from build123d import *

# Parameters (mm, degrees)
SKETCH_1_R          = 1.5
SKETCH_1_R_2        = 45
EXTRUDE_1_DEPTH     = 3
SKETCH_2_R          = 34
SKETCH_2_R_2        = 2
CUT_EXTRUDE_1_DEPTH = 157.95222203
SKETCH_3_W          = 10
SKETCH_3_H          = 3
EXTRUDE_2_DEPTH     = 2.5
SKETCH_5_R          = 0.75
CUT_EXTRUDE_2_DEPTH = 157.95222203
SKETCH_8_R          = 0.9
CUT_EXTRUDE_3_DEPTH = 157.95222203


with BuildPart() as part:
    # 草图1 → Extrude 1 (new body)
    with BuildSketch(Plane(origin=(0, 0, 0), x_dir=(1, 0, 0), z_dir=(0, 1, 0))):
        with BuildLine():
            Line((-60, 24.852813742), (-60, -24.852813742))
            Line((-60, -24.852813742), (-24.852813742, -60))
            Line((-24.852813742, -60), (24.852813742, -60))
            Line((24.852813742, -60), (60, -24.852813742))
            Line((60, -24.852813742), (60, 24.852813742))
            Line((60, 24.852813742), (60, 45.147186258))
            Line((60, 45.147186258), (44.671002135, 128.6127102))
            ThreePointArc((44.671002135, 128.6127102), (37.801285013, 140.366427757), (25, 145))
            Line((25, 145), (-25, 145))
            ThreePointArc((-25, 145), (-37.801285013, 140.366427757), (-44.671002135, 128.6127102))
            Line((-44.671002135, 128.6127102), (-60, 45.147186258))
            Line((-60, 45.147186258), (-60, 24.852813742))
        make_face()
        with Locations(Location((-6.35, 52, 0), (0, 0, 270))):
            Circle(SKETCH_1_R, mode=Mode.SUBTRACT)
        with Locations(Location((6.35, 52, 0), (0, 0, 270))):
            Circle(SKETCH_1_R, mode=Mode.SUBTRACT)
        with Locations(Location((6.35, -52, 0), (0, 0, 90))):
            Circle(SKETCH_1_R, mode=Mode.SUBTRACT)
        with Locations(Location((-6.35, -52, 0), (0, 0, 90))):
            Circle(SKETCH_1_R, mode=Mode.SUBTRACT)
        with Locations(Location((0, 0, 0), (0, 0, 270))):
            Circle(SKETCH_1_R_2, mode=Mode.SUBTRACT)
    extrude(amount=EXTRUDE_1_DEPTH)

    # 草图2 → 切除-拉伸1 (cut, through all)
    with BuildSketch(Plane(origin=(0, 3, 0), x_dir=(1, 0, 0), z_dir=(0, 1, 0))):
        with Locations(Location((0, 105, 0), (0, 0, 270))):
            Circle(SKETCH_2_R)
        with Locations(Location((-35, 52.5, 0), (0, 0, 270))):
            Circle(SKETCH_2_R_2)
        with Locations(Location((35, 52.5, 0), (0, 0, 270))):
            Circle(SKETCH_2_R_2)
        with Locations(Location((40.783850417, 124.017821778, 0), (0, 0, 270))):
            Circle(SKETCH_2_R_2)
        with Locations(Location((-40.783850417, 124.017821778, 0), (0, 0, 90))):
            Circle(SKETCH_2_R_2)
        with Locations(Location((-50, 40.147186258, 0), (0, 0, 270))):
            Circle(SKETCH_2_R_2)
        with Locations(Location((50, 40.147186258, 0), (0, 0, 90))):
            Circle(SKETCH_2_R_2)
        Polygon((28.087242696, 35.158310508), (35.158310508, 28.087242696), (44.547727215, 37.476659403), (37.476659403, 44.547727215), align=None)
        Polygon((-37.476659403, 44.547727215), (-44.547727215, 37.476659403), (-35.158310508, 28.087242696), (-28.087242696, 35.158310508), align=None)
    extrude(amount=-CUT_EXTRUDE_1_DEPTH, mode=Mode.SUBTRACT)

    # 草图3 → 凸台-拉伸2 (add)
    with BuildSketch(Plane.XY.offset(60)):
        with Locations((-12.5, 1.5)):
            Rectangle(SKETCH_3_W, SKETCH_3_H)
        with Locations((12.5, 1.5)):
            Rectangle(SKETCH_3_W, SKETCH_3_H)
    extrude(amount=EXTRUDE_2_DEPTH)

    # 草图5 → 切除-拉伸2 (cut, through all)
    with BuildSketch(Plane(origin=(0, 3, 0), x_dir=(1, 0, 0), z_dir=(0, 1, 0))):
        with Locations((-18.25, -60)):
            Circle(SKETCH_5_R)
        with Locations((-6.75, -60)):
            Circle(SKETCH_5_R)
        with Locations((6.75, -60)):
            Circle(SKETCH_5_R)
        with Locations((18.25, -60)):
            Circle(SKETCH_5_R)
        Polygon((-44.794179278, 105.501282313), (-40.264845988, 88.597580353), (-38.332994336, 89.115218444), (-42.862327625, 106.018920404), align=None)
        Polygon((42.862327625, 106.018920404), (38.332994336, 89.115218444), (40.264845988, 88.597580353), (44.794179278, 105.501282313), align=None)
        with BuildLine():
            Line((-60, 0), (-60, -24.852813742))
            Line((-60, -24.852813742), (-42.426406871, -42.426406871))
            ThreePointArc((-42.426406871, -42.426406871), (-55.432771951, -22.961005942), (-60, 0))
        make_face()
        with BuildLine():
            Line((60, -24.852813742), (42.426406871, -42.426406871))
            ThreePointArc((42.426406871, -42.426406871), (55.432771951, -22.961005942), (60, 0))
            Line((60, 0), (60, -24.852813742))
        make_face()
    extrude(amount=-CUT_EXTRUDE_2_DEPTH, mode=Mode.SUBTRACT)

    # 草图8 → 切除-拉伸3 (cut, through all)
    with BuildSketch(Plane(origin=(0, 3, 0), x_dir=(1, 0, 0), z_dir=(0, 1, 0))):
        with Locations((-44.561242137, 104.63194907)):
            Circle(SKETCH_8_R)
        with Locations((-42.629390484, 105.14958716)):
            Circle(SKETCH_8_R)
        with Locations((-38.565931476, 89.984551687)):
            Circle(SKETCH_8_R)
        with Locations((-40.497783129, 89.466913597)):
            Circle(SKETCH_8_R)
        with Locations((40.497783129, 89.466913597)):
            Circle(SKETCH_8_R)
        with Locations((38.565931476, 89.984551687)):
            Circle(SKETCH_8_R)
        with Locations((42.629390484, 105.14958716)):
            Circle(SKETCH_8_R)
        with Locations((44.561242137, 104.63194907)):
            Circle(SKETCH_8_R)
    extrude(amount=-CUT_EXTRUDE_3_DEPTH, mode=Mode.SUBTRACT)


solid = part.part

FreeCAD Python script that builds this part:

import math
import FreeCAD as App
import Part
import Sketcher
Q = App.Units.Quantity


def add_polygon(sketch, points):
    """Adds a closed chain of lines whose ends are joined by coincident constraints."""
    first, n = sketch.GeometryCount, len(points)
    for a, b in zip(points, points[1:] + points[:1]):
        sketch.addGeometry(Part.LineSegment(App.Vector(*a, 0), App.Vector(*b, 0)), False)
    for i in range(n):
        sketch.addConstraint(Sketcher.Constraint("Coincident", first + i, 2, first + (i + 1) % n, 1))

doc = App.newDocument("Part")
body = doc.addObject("PartDesign::Body", "Body")

sketch1 = body.newObject("Sketcher::SketchObject", "Sketch")
sketch1.AttachmentSupport = (doc.getObject("XZ_Plane"), [""])
sketch1.MapMode = "FlatFace"
sketch1.addGeometry(Part.LineSegment(App.Vector(-60, 24.852814, 0), App.Vector(-24.852814, 60, 0)), False)
sketch1.addGeometry(Part.LineSegment(App.Vector(-24.852814, 60, 0), App.Vector(24.852814, 60, 0)), False)
sketch1.addGeometry(Part.LineSegment(App.Vector(24.852814, 60, 0), App.Vector(60, 24.852814, 0)), False)
sketch1.addGeometry(Part.LineSegment(App.Vector(60, 24.852814, 0), App.Vector(60, -45.147186, 0)), False)
sketch1.addGeometry(Part.LineSegment(App.Vector(60, -45.147186, 0), App.Vector(44.671002, -128.61271, 0)), False)
sketch1.addGeometry(Part.ArcOfCircle(Part.Circle(App.Vector(25, -125, 0), App.Vector(0, 0, 1), 20), math.radians(-90), math.radians(-10.406779)), False)
sketch1.addGeometry(Part.LineSegment(App.Vector(25, -145, 0), App.Vector(-25, -145, 0)), False)
sketch1.addGeometry(Part.ArcOfCircle(Part.Circle(App.Vector(-25, -125, 0), App.Vector(0, 0, 1), 20), math.radians(-169.593221), math.radians(-90)), False)
sketch1.addGeometry(Part.LineSegment(App.Vector(-44.671002, -128.61271, 0), App.Vector(-60, -45.147186, 0)), False)
sketch1.addGeometry(Part.LineSegment(App.Vector(-60, -45.147186, 0), App.Vector(-60, 24.852814, 0)), False)
sketch1.addGeometry(Part.Circle(App.Vector(-6.35, 52, 0), App.Vector(0, 0, 1), 1.5), False)
sketch1.addGeometry(Part.Circle(App.Vector(6.35, 52, 0), App.Vector(0, 0, 1), 1.5), False)
sketch1.addGeometry(Part.Circle(App.Vector(0, 0, 0), App.Vector(0, 0, 1), 45), False)
sketch1.addGeometry(Part.Circle(App.Vector(-6.35, -52, 0), App.Vector(0, 0, 1), 1.5), False)
sketch1.addGeometry(Part.Circle(App.Vector(6.35, -52, 0), App.Vector(0, 0, 1), 1.5), False)
sketch1.addConstraint(Sketcher.Constraint("Coincident", 0, 2, 1, 1))
sketch1.addConstraint(Sketcher.Constraint("Coincident", 1, 2, 2, 1))
sketch1.addConstraint(Sketcher.Constraint("Coincident", 2, 2, 3, 1))
sketch1.addConstraint(Sketcher.Constraint("Coincident", 3, 2, 4, 1))
sketch1.addConstraint(Sketcher.Constraint("Tangent", 4, 2, 5, 2))
sketch1.addConstraint(Sketcher.Constraint("Tangent", 5, 1, 6, 1))
sketch1.addConstraint(Sketcher.Constraint("Tangent", 6, 2, 7, 2))
sketch1.addConstraint(Sketcher.Constraint("Tangent", 7, 1, 8, 1))
sketch1.addConstraint(Sketcher.Constraint("Coincident", 8, 2, 9, 1))
sketch1.addConstraint(Sketcher.Constraint("Coincident", 9, 2, 0, 1))
sketch1.addConstraint(Sketcher.Constraint("Horizontal", 1))
sketch1.addConstraint(Sketcher.Constraint("Vertical", 3))
sketch1.addConstraint(Sketcher.Constraint("Horizontal", 6))
sketch1.addConstraint(Sketcher.Constraint("Vertical", 9))
sketch1.addConstraint(Sketcher.Constraint("Coincident", 12, 3, -1, 1))
sketch1.addConstraint(Sketcher.Constraint("Equal", 5, 7))
sketch1.addConstraint(Sketcher.Constraint("Equal", 10, 11))
sketch1.addConstraint(Sketcher.Constraint("Equal", 11, 13))
sketch1.addConstraint(Sketcher.Constraint("Equal", 13, 14))
sketch1.addConstraint(Sketcher.Constraint("Symmetric", 11, 3, 13, 3, -1, 1))
sketch1.addConstraint(Sketcher.Constraint("Symmetric", 10, 3, 14, 3, -1, 1))
sketch1.addConstraint(Sketcher.Constraint("Symmetric", 10, 3, 11, 3, -2))
sketch1.addConstraint(Sketcher.Constraint("Symmetric", 4, 2, 7, 1, -2))
sketch1.addConstraint(Sketcher.Constraint("Symmetric", 2, 2, 9, 2, -2))
sketch1.addConstraint(Sketcher.Constraint("Perpendicular", 0, 2))
sketch1.addConstraint(Sketcher.Constraint("Equal", 0, 2))
sketch1.addConstraint(Sketcher.Constraint("Diameter", 10, Q("3 mm")))
sketch1.addConstraint(Sketcher.Constraint("Diameter", 12, Q("90 mm")))
sketch1.addConstraint(Sketcher.Constraint("Radius", 5, Q("20 mm")))
sketch1.addConstraint(Sketcher.Constraint("DistanceX", 6, 2, 6, 1, Q("50 mm")))
sketch1.addConstraint(Sketcher.Constraint("DistanceY", 3, 2, 3, 1, Q("70 mm")))
sketch1.addConstraint(Sketcher.Constraint("DistanceY", 5, 3, -1, 1, Q("125 mm")))
sketch1.addConstraint(Sketcher.Constraint("DistanceY", -1, 1, 10, 3, Q("52 mm")))
sketch1.addConstraint(Sketcher.Constraint("DistanceY", -1, 1, 0, 2, Q("60 mm")))
sketch1.addConstraint(Sketcher.Constraint("DistanceX", -1, 1, 2, 2, Q("60 mm")))
sketch1.addConstraint(Sketcher.Constraint("DistanceX", 10, 3, 11, 3, Q("12.7 mm")))
sketch1.addConstraint(Sketcher.Constraint("DistanceX", 1, 1, 1, 2, Q("49.705627 mm")))
pad1 = body.newObject("PartDesign::Pad", "Pad")
pad1.Profile = sketch1
pad1.Length = 3
pad1.Reversed = True

sketch2 = body.newObject("Sketcher::SketchObject", "Sketch001")
sketch2.AttachmentSupport = (doc.getObject("XZ_Plane"), [""])
sketch2.MapMode = "FlatFace"
sketch2.AttachmentOffset = App.Placement(App.Vector(0, 0, -3), App.Rotation())
sketch2.addGeometry(Part.Circle(App.Vector(0, -105, 0), App.Vector(0, 0, 1), 34), False)
sketch2.addGeometry(Part.Circle(App.Vector(-35, -52.5, 0), App.Vector(0, 0, 1), 2), False)
sketch2.addGeometry(Part.Circle(App.Vector(35, -52.5, 0), App.Vector(0, 0, 1), 2), False)
sketch2.addGeometry(Part.Circle(App.Vector(40.78385, -124.017822, 0), App.Vector(0, 0, 1), 2), False)
sketch2.addGeometry(Part.Circle(App.Vector(-40.78385, -124.017822, 0), App.Vector(0, 0, 1), 2), False)
sketch2.addGeometry(Part.Circle(App.Vector(-50, -40.147186, 0), App.Vector(0, 0, 1), 2), False)
sketch2.addGeometry(Part.Circle(App.Vector(50, -40.147186, 0), App.Vector(0, 0, 1), 2), False)
add_polygon(sketch2, [(28.087243, -35.158311), (35.158311, -28.087243), (44.547727, -37.476659), (37.476659, -44.547727)])
add_polygon(sketch2, [(-37.476659, -44.547727), (-44.547727, -37.476659), (-35.158311, -28.087243), (-28.087243, -35.158311)])
sketch2.addConstraint(Sketcher.Constraint("Equal", 1, 2))
sketch2.addConstraint(Sketcher.Constraint("Equal", 2, 3))
sketch2.addConstraint(Sketcher.Constraint("Equal", 3, 4))
sketch2.addConstraint(Sketcher.Constraint("Equal", 4, 5))
sketch2.addConstraint(Sketcher.Constraint("Equal", 5, 6))
sketch2.addConstraint(Sketcher.Constraint("Symmetric", 1, 3, 2, 3, -2))
sketch2.addConstraint(Sketcher.Constraint("Symmetric", 3, 3, 4, 3, -2))
sketch2.addConstraint(Sketcher.Constraint("Symmetric", 5, 3, 6, 3, -2))
sketch2.addConstraint(Sketcher.Constraint("Symmetric", 8, 2, 11, 2, -2))
sketch2.addConstraint(Sketcher.Constraint("Symmetric", 7, 2, 12, 2, -2))
sketch2.addConstraint(Sketcher.Constraint("Symmetric", 10, 2, 13, 2, -2))
sketch2.addConstraint(Sketcher.Constraint("Symmetric", 9, 2, 14, 2, -2))
sketch2.addConstraint(Sketcher.Constraint("PointOnObject", 0, 3, -2))
sketch2.addConstraint(Sketcher.Constraint("Perpendicular", 7, 8))
sketch2.addConstraint(Sketcher.Constraint("Perpendicular", 8, 9))
sketch2.addConstraint(Sketcher.Constraint("Perpendicular", 9, 10))
sketch2.addConstraint(Sketcher.Constraint("Parallel", 10, 11))
sketch2.addConstraint(Sketcher.Constraint("Diameter", 0, Q("68 mm")))
sketch2.addConstraint(Sketcher.Constraint("Diameter", 1, Q("4 mm")))
sketch2.addConstraint(Sketcher.Constraint("Distance", 7, Q("10 mm")))
sketch2.addConstraint(Sketcher.Constraint("DistanceY", 0, 3, -1, 1, Q("105 mm")))
sketch2.addConstraint(Sketcher.Constraint("DistanceX", 1, 3, -1, 1, Q("35 mm")))
sketch2.addConstraint(Sketcher.Constraint("DistanceX", 5, 3, -1, 1, Q("50 mm")))
sketch2.addConstraint(Sketcher.Constraint("DistanceY", 1, 3, -1, 1, Q("52.5 mm")))
sketch2.addConstraint(Sketcher.Constraint("DistanceX", 4, 3, 3, 3, Q("81.567701 mm")))
sketch2.addConstraint(Sketcher.Constraint("Distance", 8, Q("13.27864 mm")))
sketch2.addConstraint(Sketcher.Constraint("DistanceY", 3, 3, -1, 1, Q("124.017822 mm")))
sketch2.addConstraint(Sketcher.Constraint("DistanceX", -1, 1, 7, 2, Q("35.158311 mm")))
sketch2.addConstraint(Sketcher.Constraint("DistanceY", 8, 2, -1, 1, Q("37.476659 mm")))
sketch2.addConstraint(Sketcher.Constraint("DistanceY", 9, 2, 6, 3, Q("4.400541 mm")))
pocket1 = body.newObject("PartDesign::Pocket", "Pocket")
pocket1.Profile = sketch2
pocket1.Type = "ThroughAll"
pocket1.Reversed = True

sketch3 = body.newObject("Sketcher::SketchObject", "Sketch002")
sketch3.AttachmentSupport = (doc.getObject("XY_Plane"), [""])
sketch3.MapMode = "FlatFace"
sketch3.AttachmentOffset = App.Placement(App.Vector(0, 0, 60), App.Rotation())
add_polygon(sketch3, [(-17.5, 3), (-17.5, 0), (-7.5, 0), (-7.5, 3)])
add_polygon(sketch3, [(7.5, 3), (7.5, 0), (17.5, 0), (17.5, 3)])
sketch3.addConstraint(Sketcher.Constraint("Vertical", 0))
sketch3.addConstraint(Sketcher.Constraint("Horizontal", 1))
sketch3.addConstraint(Sketcher.Constraint("Vertical", 2))
sketch3.addConstraint(Sketcher.Constraint("Horizontal", 3))
sketch3.addConstraint(Sketcher.Constraint("Vertical", 4))
sketch3.addConstraint(Sketcher.Constraint("Horizontal", 5))
sketch3.addConstraint(Sketcher.Constraint("Vertical", 6))
sketch3.addConstraint(Sketcher.Constraint("Horizontal", 7))
sketch3.addConstraint(Sketcher.Constraint("Symmetric", 1, 2, 4, 2, -1, 1))
sketch3.addConstraint(Sketcher.Constraint("Symmetric", 0, 2, 5, 2, -2))
sketch3.addConstraint(Sketcher.Constraint("Horizontal", 3, 2, 6, 2))
sketch3.addConstraint(Sketcher.Constraint("DistanceX", 1, 1, 1, 2, Q("10 mm")))
sketch3.addConstraint(Sketcher.Constraint("DistanceY", 0, 2, 0, 1, Q("3 mm")))
sketch3.addConstraint(Sketcher.Constraint("DistanceX", 1, 2, 4, 2, Q("15 mm")))
pad2 = body.newObject("PartDesign::Pad", "Pad001")
pad2.Profile = sketch3
pad2.Length = 2.5

sketch4 = body.newObject("Sketcher::SketchObject", "Sketch003")
sketch4.AttachmentSupport = (doc.getObject("XZ_Plane"), [""])
sketch4.MapMode = "FlatFace"
sketch4.AttachmentOffset = App.Placement(App.Vector(0, 0, -3), App.Rotation())
sketch4.addGeometry(Part.Circle(App.Vector(-18.25, 60, 0), App.Vector(0, 0, 1), 0.75), False)
sketch4.addGeometry(Part.Circle(App.Vector(-6.75, 60, 0), App.Vector(0, 0, 1), 0.75), False)
sketch4.addGeometry(Part.Circle(App.Vector(6.75, 60, 0), App.Vector(0, 0, 1), 0.75), False)
sketch4.addGeometry(Part.Circle(App.Vector(18.25, 60, 0), App.Vector(0, 0, 1), 0.75), False)
add_polygon(sketch4, [(-44.794179, -105.501282), (-40.264846, -88.59758), (-38.332994, -89.115218), (-42.862328, -106.01892)])
add_polygon(sketch4, [(42.862328, -106.01892), (38.332994, -89.115218), (40.264846, -88.59758), (44.794179, -105.501282)])
sketch4.addGeometry(Part.LineSegment(App.Vector(-60, 0, 0), App.Vector(-60, 24.852814, 0)), False)
sketch4.addGeometry(Part.LineSegment(App.Vector(-60, 24.852814, 0), App.Vector(-42.426407, 42.426407, 0)), False)
sketch4.addGeometry(Part.ArcOfCircle(Part.Circle(App.Vector(0, 0, 0), App.Vector(0, 0, 1), 60), math.radians(135), math.radians(180)), False)
sketch4.addGeometry(Part.LineSegment(App.Vector(42.426407, 42.426407, 0), App.Vector(60, 24.852814, 0)), False)
sketch4.addGeometry(Part.LineSegment(App.Vector(60, 24.852814, 0), App.Vector(60, 0, 0)), False)
sketch4.addGeometry(Part.ArcOfCircle(Part.Circle(App.Vector(0, 0, 0), App.Vector(0, 0, 1), 60), math.radians(0), math.radians(45)), False)
sketch4.addConstraint(Sketcher.Constraint("Coincident", 12, 2, 13, 1))
sketch4.addConstraint(Sketcher.Constraint("Tangent", 13, 2, 14, 1))
sketch4.addConstraint(Sketcher.Constraint("Tangent", 14, 2, 12, 1))
sketch4.addConstraint(Sketcher.Constraint("Coincident", 15, 2, 16, 1))
sketch4.addConstraint(Sketcher.Constraint("Tangent", 16, 2, 17, 1))
sketch4.addConstraint(Sketcher.Constraint("Tangent", 17, 2, 15, 1))
sketch4.addConstraint(Sketcher.Constraint("Vertical", 12))
sketch4.addConstraint(Sketcher.Constraint("Vertical", 16))
sketch4.addConstraint(Sketcher.Constraint("Coincident", 14, 3, -1, 1))
sketch4.addConstraint(Sketcher.Constraint("Coincident", 17, 3, -1, 1))
sketch4.addConstraint(Sketcher.Constraint("Equal", 0, 1))
sketch4.addConstraint(Sketcher.Constraint("Equal", 1, 2))
sketch4.addConstraint(Sketcher.Constraint("Equal", 2, 3))
sketch4.addConstraint(Sketcher.Constraint("Equal", 14, 17))
sketch4.addConstraint(Sketcher.Constraint("Symmetric", 1, 3, 2, 3, -2))
sketch4.addConstraint(Sketcher.Constraint("Symmetric", 0, 3, 3, 3, -2))
sketch4.addConstraint(Sketcher.Constraint("Symmetric", 5, 2, 8, 2, -2))
sketch4.addConstraint(Sketcher.Constraint("Symmetric", 4, 2, 9, 2, -2))
sketch4.addConstraint(Sketcher.Constraint("Symmetric", 7, 2, 10, 2, -2))
sketch4.addConstraint(Sketcher.Constraint("Symmetric", 6, 2, 11, 2, -2))
sketch4.addConstraint(Sketcher.Constraint("Perpendicular", 4, 5))
sketch4.addConstraint(Sketcher.Constraint("Perpendicular", 5, 6))
sketch4.addConstraint(Sketcher.Constraint("Perpendicular", 6, 7))
sketch4.addConstraint(Sketcher.Constraint("Perpendicular", 13, 15))
sketch4.addConstraint(Sketcher.Constraint("Horizontal", 0, 3, 1, 3))
sketch4.addConstraint(Sketcher.Constraint("Horizontal", 12, 2, 15, 2))
sketch4.addConstraint(Sketcher.Constraint("Radius", 14, Q("60 mm")))
sketch4.addConstraint(Sketcher.Constraint("Diameter", 0, Q("1.5 mm")))
sketch4.addConstraint(Sketcher.Constraint("Angle", 4, Q("75 deg")))
sketch4.addConstraint(Sketcher.Constraint("Distance", 5, Q("2 mm")))
sketch4.addConstraint(Sketcher.Constraint("DistanceY", -1, 1, 0, 3, Q("60 mm")))
sketch4.addConstraint(Sketcher.Constraint("DistanceX", 0, 3, 2, 3, Q("25 mm")))
sketch4.addConstraint(Sketcher.Constraint("Distance", 4, Q("17.5 mm")))
sketch4.addConstraint(Sketcher.Constraint("DistanceX", 0, 3, 1, 3, Q("11.5 mm")))
sketch4.addConstraint(Sketcher.Constraint("DistanceY", 4, 2, -1, 1, Q("88.59758 mm")))
sketch4.addConstraint(Sketcher.Constraint("DistanceX", 7, 2, -1, 1, Q("44.794179 mm")))
pocket2 = body.newObject("PartDesign::Pocket", "Pocket001")
pocket2.Profile = sketch4
pocket2.Type = "ThroughAll"
pocket2.Reversed = True

sketch5 = body.newObject("Sketcher::SketchObject", "Sketch004")
sketch5.AttachmentSupport = (doc.getObject("XZ_Plane"), [""])
sketch5.MapMode = "FlatFace"
sketch5.AttachmentOffset = App.Placement(App.Vector(0, 0, -3), App.Rotation())
sketch5.addGeometry(Part.Circle(App.Vector(-44.561242, -104.631949, 0), App.Vector(0, 0, 1), 0.9), False)
sketch5.addGeometry(Part.Circle(App.Vector(-42.62939, -105.149587, 0), App.Vector(0, 0, 1), 0.9), False)
sketch5.addGeometry(Part.Circle(App.Vector(-38.565931, -89.984552, 0), App.Vector(0, 0, 1), 0.9), False)
sketch5.addGeometry(Part.Circle(App.Vector(-40.497783, -89.466914, 0), App.Vector(0, 0, 1), 0.9), False)
sketch5.addGeometry(Part.Circle(App.Vector(40.497783, -89.466914, 0), App.Vector(0, 0, 1), 0.9), False)
sketch5.addGeometry(Part.Circle(App.Vector(38.565931, -89.984552, 0), App.Vector(0, 0, 1), 0.9), False)
sketch5.addGeometry(Part.Circle(App.Vector(42.62939, -105.149587, 0), App.Vector(0, 0, 1), 0.9), False)
sketch5.addGeometry(Part.Circle(App.Vector(44.561242, -104.631949, 0), App.Vector(0, 0, 1), 0.9), False)
sketch5.addConstraint(Sketcher.Constraint("Equal", 0, 1))
sketch5.addConstraint(Sketcher.Constraint("Equal", 1, 2))
sketch5.addConstraint(Sketcher.Constraint("Equal", 2, 3))
sketch5.addConstraint(Sketcher.Constraint("Equal", 3, 4))
sketch5.addConstraint(Sketcher.Constraint("Equal", 4, 5))
sketch5.addConstraint(Sketcher.Constraint("Equal", 5, 6))
sketch5.addConstraint(Sketcher.Constraint("Equal", 6, 7))
sketch5.addConstraint(Sketcher.Constraint("Symmetric", 3, 3, 4, 3, -2))
sketch5.addConstraint(Sketcher.Constraint("Symmetric", 2, 3, 5, 3, -2))
sketch5.addConstraint(Sketcher.Constraint("Symmetric", 1, 3, 6, 3, -2))
sketch5.addConstraint(Sketcher.Constraint("Symmetric", 0, 3, 7, 3, -2))
sketch5.addConstraint(Sketcher.Constraint("Diameter", 0, Q("1.8 mm")))
sketch5.addConstraint(Sketcher.Constraint("DistanceY", 0, 3, -1, 1, Q("104.631949 mm")))
sketch5.addConstraint(Sketcher.Constraint("DistanceX", 1, 3, -1, 1, Q("42.62939 mm")))
sketch5.addConstraint(Sketcher.Constraint("DistanceX", 2, 3, -1, 1, Q("38.565931 mm")))
sketch5.addConstraint(Sketcher.Constraint("DistanceY", 2, 3, -1, 1, Q("89.984552 mm")))
sketch5.addConstraint(Sketcher.Constraint("DistanceX", 0, 3, 1, 3, Q("1.931852 mm")))
sketch5.addConstraint(Sketcher.Constraint("DistanceY", 1, 3, 0, 3, Q("0.517638 mm")))
sketch5.addConstraint(Sketcher.Constraint("DistanceX", 3, 3, 2, 3, Q("1.931852 mm")))
sketch5.addConstraint(Sketcher.Constraint("DistanceY", 2, 3, 3, 3, Q("0.517638 mm")))
pocket3 = body.newObject("PartDesign::Pocket", "Pocket002")
pocket3.Profile = sketch5
pocket3.Type = "ThroughAll"
pocket3.Reversed = True

doc.recompute()
